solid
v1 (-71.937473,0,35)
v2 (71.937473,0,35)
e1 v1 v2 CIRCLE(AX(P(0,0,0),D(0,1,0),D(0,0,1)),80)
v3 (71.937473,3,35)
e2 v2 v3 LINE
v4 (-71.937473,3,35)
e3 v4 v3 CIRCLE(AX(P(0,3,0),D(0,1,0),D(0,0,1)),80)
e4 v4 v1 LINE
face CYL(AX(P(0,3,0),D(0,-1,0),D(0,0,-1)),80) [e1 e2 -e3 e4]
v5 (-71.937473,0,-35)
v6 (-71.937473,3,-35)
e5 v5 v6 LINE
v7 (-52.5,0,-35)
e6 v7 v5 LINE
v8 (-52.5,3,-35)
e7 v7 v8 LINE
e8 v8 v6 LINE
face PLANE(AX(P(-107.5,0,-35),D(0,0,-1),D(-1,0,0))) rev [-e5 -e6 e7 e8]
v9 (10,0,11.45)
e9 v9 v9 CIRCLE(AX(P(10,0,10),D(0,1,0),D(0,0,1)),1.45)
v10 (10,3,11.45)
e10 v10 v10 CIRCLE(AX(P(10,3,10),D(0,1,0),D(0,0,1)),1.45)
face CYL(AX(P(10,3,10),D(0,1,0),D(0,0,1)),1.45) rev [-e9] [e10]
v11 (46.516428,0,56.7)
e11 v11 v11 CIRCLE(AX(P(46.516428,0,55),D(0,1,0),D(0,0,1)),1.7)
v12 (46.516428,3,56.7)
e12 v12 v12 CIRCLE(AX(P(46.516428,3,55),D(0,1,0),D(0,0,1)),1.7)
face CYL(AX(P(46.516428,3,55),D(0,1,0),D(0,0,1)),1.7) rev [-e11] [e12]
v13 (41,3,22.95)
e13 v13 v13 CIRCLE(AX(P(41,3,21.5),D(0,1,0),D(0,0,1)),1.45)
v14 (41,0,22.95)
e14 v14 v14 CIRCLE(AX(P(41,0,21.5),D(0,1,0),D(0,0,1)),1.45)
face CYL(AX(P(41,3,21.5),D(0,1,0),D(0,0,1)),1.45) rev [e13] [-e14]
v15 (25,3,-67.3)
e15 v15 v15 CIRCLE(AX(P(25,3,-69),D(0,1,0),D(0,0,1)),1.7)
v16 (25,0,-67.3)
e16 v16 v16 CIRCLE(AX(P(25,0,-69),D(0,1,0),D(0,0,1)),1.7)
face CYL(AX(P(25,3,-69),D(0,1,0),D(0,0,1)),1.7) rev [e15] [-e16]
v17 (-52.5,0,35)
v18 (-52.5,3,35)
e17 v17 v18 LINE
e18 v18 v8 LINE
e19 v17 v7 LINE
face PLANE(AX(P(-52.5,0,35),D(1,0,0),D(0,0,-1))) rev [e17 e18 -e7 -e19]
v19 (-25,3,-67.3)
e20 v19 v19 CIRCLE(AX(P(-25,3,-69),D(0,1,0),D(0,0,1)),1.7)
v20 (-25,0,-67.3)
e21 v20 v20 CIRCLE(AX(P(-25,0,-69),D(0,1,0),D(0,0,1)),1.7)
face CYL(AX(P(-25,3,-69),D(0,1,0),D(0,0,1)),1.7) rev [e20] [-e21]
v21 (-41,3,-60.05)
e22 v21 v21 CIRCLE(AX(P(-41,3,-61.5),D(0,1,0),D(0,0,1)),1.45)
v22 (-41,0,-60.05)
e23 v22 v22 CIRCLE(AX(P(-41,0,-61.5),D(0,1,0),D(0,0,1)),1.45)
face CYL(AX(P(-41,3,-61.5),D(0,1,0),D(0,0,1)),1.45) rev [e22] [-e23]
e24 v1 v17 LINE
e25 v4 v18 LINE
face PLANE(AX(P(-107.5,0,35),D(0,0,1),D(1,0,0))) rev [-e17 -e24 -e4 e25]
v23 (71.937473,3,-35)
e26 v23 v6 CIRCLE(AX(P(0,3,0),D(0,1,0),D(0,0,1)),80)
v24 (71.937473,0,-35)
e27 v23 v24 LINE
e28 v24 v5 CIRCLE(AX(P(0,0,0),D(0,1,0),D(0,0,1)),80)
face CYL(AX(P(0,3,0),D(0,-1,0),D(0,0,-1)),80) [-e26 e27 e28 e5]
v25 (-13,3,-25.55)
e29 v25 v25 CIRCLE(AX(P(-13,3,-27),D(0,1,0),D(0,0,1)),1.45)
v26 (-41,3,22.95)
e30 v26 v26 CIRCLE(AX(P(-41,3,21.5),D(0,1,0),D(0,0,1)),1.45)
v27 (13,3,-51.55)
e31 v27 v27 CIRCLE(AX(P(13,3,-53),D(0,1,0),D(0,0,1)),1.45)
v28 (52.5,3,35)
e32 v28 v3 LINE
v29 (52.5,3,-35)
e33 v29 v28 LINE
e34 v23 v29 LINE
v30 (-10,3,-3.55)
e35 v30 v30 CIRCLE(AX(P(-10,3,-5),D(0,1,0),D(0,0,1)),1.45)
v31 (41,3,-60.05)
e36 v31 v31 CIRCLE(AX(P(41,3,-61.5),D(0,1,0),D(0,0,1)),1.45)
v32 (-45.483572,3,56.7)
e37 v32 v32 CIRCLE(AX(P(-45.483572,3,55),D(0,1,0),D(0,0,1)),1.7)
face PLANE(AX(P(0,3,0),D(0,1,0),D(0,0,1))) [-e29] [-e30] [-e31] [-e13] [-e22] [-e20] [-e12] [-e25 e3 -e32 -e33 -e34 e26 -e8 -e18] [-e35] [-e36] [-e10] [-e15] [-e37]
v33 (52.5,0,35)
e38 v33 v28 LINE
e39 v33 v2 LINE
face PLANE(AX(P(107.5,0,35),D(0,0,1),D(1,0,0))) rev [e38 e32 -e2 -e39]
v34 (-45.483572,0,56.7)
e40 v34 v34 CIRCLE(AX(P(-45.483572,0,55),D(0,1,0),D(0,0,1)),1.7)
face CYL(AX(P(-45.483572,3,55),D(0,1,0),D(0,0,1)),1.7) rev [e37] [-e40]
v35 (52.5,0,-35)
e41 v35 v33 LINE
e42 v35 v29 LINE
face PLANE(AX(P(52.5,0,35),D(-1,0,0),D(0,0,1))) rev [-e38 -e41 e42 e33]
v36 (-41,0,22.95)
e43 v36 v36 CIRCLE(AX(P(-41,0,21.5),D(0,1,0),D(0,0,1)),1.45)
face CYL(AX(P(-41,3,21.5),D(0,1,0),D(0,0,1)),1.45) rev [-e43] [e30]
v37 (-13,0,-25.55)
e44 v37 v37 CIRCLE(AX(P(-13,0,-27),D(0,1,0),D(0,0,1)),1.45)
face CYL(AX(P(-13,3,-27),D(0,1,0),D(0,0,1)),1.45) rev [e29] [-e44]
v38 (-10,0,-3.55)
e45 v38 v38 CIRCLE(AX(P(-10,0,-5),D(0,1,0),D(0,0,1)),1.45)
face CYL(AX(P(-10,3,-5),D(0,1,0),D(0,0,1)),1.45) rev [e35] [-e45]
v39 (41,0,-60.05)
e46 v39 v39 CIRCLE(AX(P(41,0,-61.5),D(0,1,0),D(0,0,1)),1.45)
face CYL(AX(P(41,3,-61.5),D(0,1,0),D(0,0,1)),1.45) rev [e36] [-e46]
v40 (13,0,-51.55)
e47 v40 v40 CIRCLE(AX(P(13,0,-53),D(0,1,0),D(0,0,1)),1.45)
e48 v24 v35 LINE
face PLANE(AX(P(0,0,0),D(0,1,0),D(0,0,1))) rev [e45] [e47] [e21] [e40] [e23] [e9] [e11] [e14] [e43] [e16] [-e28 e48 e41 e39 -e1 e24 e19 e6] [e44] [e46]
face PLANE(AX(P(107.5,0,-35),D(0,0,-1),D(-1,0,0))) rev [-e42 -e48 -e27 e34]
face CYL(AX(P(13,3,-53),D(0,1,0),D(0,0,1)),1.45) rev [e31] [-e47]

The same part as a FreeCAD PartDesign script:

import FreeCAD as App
import Part
import Sketcher
from FreeCAD import Vector

doc = App.newDocument("Part")
body = doc.addObject("PartDesign::Body", "Body")

sketch1 = body.newObject("Sketcher::SketchObject", "Sketch")
sketch1.AttachmentSupport = (doc.getObject("XZ_Plane"), [""])
sketch1.MapMode = "FlatFace"
sketch1.addGeometry(Part.Circle(Vector(0, 0, 0), Vector(0, 0, 1), 80), False)
sketch1.addConstraint(Sketcher.Constraint("Coincident", 0, 3, -1, 1))
sketch1.addConstraint(Sketcher.Constraint("Diameter", 0, 160.0))
pad1 = body.newObject("PartDesign::Pad", "Pad")
pad1.Profile = sketch1
pad1.Length = 3
pad1.Reversed = True

sketch2 = body.newObject("Sketcher::SketchObject", "Sketch001")
sketch2.AttachmentSupport = (doc.getObject("XZ_Plane"), [""])
sketch2.MapMode = "FlatFace"
sketch2.AttachmentOffset = App.Placement(Vector(0, 0, -3), App.Rotation())
sketch2.addGeometry(Part.LineSegment(Vector(-108, -35, 0), Vector(-108, 35, 0)), False)
sketch2.addGeometry(Part.LineSegment(Vector(-108, 35, 0), Vector(-52, 35, 0)), False)
sketch2.addGeometry(Part.LineSegment(Vector(-52, 35, 0), Vector(-52, -35, 0)), False)
sketch2.addGeometry(Part.LineSegment(Vector(-52, -35, 0), Vector(-108, -35, 0)), False)
sketch2.addGeometry(Part.LineSegment(Vector(52, -35, 0), Vector(52, 35, 0)), False)
sketch2.addGeometry(Part.LineSegment(Vector(52, 35, 0), Vector(108, 35, 0)), False)
sketch2.addGeometry(Part.LineSegment(Vector(108, 35, 0), Vector(108, -35, 0)), False)
sketch2.addGeometry(Part.LineSegment(Vector(108, -35, 0), Vector(52, -35, 0)), False)
sketch2.addConstraint(Sketcher.Constraint("Coincident", 0, 2, 1, 1))
sketch2.addConstraint(Sketcher.Constraint("Coincident", 1, 2, 2, 1))
sketch2.addConstraint(Sketcher.Constraint("Coincident", 2, 2, 3, 1))
sketch2.addConstraint(Sketcher.Constraint("Coincident", 3, 2, 0, 1))
sketch2.addConstraint(Sketcher.Constraint("Coincident", 4, 2, 5, 1))
sketch2.addConstraint(Sketcher.Constraint("Coincident", 5, 2, 6, 1))
sketch2.addConstraint(Sketcher.Constraint("Coincident", 6, 2, 7, 1))
sketch2.addConstraint(Sketcher.Constraint("Coincident", 7, 2, 4, 1))
sketch2.addConstraint(Sketcher.Constraint("Vertical", 0))
sketch2.addConstraint(Sketcher.Constraint("Horizontal", 1))
sketch2.addConstraint(Sketcher.Constraint("Vertical", 2))
sketch2.addConstraint(Sketcher.Constraint("Horizontal", 3))
sketch2.addConstraint(Sketcher.Constraint("Vertical", 4))
sketch2.addConstraint(Sketcher.Constraint("Horizontal", 5))
sketch2.addConstraint(Sketcher.Constraint("Vertical", 6))
sketch2.addConstraint(Sketcher.Constraint("Horizontal", 7))
sketch2.addConstraint(Sketcher.Constraint("Symmetric", 2, 2, 4, 2, -1, 1))
sketch2.addConstraint(Sketcher.Constraint("Symmetric", 0, 2, 6, 2, -1, 1))
sketch2.addConstraint(Sketcher.Constraint("Horizontal", 1, 2, 4, 2))
sketch2.addConstraint(Sketcher.Constraint("DistanceX", 1, 1, 1, 2, 55.0))
sketch2.addConstraint(Sketcher.Constraint("DistanceY", 0, 1, 0, 2, 70.0))
sketch2.addConstraint(Sketcher.Constraint("DistanceX", 1, 2, 4, 2, 105.0))
pocket1 = body.newObject("PartDesign::Pocket", "Pocket")
pocket1.Profile = sketch2
pocket1.Type = "ThroughAll"
pocket1.Reversed = True

sketch3 = body.newObject("Sketcher::SketchObject", "Sketch002")
sketch3.AttachmentSupport = (doc.getObject("XZ_Plane"), [""])
sketch3.MapMode = "FlatFace"
sketch3.AttachmentOffset = App.Placement(Vector(0, 0, -3), App.Rotation())
sketch3.addGeometry(Part.Circle(Vector(-41, -61.5, 0), Vector(0, 0, 1), 1.4), False)
sketch3.addGeometry(Part.Circle(Vector(-41, 21.5, 0), Vector(0, 0, 1), 1.4), False)
sketch3.addGeometry(Part.Circle(Vector(41, 21.5, 0), Vector(0, 0, 1), 1.4), False)
sketch3.addGeometry(Part.Circle(Vector(41, -61.5, 0), Vector(0, 0, 1), 1.4), False)
sketch3.addConstraint(Sketcher.Constraint("Equal", 0, 1))
sketch3.addConstraint(Sketcher.Constraint("Equal", 1, 2))
sketch3.addConstraint(Sketcher.Constraint("Equal", 2, 3))
sketch3.addConstraint(Sketcher.Constraint("Symmetric", 1, 3, 2, 3, -2))
sketch3.addConstraint(Sketcher.Constraint("Symmetric", 0, 3, 3, 3, -2))
sketch3.addConstraint(Sketcher.Constraint("Vertical", 0, 3, 1, 3))
sketch3.addConstraint(Sketcher.Constraint("Diameter", 0, 2.9))
sketch3.addConstraint(Sketcher.Constraint("DistanceX", 0, 3, -1, 1, 41.0))
sketch3.addConstraint(Sketcher.Constraint("DistanceY", 0, 3, 1, 3, 83.0))
sketch3.addConstraint(Sketcher.Constraint("DistanceY", 0, 3, -1, 1, 61.5))
doc.recompute()
hole = body.newObject("PartDesign::Hole", "Hole")
hole.Profile = sketch3
hole.ThreadType = "None"
hole.Diameter = 2.9
hole.DepthType = "Dimension"
hole.Depth = 24
hole.DrillPoint = "Angled"
hole.DrillPointAngle = 118
hole.Reversed = True

sketch4 = body.newObject("Sketcher::SketchObject", "Sketch003")
sketch4.AttachmentSupport = (doc.getObject("XZ_Plane"), [""])
sketch4.MapMode = "FlatFace"
sketch4.AttachmentOffset = App.Placement(Vector(0, 0, -3), App.Rotation())
sketch4.addGeometry(Part.Circle(Vector(-13, -27, 0), Vector(0, 0, 1), 1.4), False)
sketch4.addGeometry(Part.Circle(Vector(13, -53, 0), Vector(0, 0, 1), 1.4), False)
sketch4.addGeometry(Part.Circle(Vector(-10, -5, 0), Vector(0, 0, 1), 1.4), False)
sketch4.addGeometry(Part.Circle(Vector(10, 10, 0), Vector(0, 0, 1), 1.4), False)
sketch4.addConstraint(Sketcher.Constraint("Equal", 0, 1))
sketch4.addConstraint(Sketcher.Constraint("Equal", 1, 2))
sketch4.addConstraint(Sketcher.Constraint("Equal", 2, 3))
sketch4.addConstraint(Sketcher.Constraint("Diameter", 0, 2.9))
sketch4.addConstraint(Sketcher.Constraint("DistanceX", 0, 3, -1, 1, 13.0))
sketch4.addConstraint(Sketcher.Constraint("DistanceY", 0, 3, -1, 1, 27.0))
sketch4.addConstraint(Sketcher.Constraint("DistanceX", -1, 1, 1, 3, 13.0))
sketch4.addConstraint(Sketcher.Constraint("DistanceY", 1, 3, -1, 1, 53.0))
sketch4.addConstraint(Sketcher.Constraint("DistanceX", 2, 3, -1, 1, 10.0))
sketch4.addConstraint(Sketcher.Constraint("DistanceY", 2, 3, -1, 1, 5.0))
sketch4.addConstraint(Sketcher.Constraint("DistanceX", -1, 1, 3, 3, 10.0))
sketch4.addConstraint(Sketcher.Constraint("DistanceY", -1, 1, 3, 3, 10.0))
doc.recompute()
hole2 = body.newObject("PartDesign::Hole", "Hole001")
hole2.Profile = sketch4
hole2.ThreadType = "None"
hole2.Diameter = 2.9
hole2.DepthType = "Dimension"
hole2.Depth = 24
hole2.DrillPoint = "Angled"
hole2.DrillPointAngle = 118
hole2.Reversed = True

sketch5 = body.newObject("Sketcher::SketchObject", "Sketch004")
sketch5.AttachmentSupport = (doc.getObject("XZ_Plane"), [""])
sketch5.MapMode = "FlatFace"
sketch5.AttachmentOffset = App.Placement(Vector(0, 0, -3), App.Rotation())
sketch5.addGeometry(Part.Circle(Vector(-45.5, 55, 0), Vector(0, 0, 1), 1.7), False)
sketch5.addGeometry(Part.Circle(Vector(46.5, 55, 0), Vector(0, 0, 1), 1.7), False)
sketch5.addGeometry(Part.Circle(Vector(-25, -69, 0), Vector(0, 0, 1), 1.7), False)
sketch5.addGeometry(Part.Circle(Vector(25, -69, 0), Vector(0, 0, 1), 1.7), False)
sketch5.addConstraint(Sketcher.Constraint("Equal", 0, 1))
sketch5.addConstraint(Sketcher.Constraint("Equal", 1, 2))
sketch5.addConstraint(Sketcher.Constraint("Equal", 2, 3))
sketch5.addConstraint(Sketcher.Constraint("Symmetric", 2, 3, 3, 3, -2))
sketch5.addConstraint(Sketcher.Constraint("Horizontal", 0, 3, 1, 3))
sketch5.addConstraint(Sketcher.Constraint("Diameter", 0, 3.4))
sketch5.addConstraint(Sketcher.Constraint("DistanceY", -1, 1, 0, 3, 55.0))
sketch5.addConstraint(Sketcher.Constraint("DistanceX", 2, 3, -1, 1, 25.0))
sketch5.addConstraint(Sketcher.Constraint("DistanceY", 2, 3, -1, 1, 69.0))
sketch5.addConstraint(Sketcher.Constraint("DistanceX", 0, 3, 1, 3, 92.0))
sketch5.addConstraint(Sketcher.Constraint("DistanceX", 0, 3, -1, 1, 45.483572))
doc.recompute()
hole3 = body.newObject("PartDesign::Hole", "Hole002")
hole3.Profile = sketch5
hole3.ThreadType = "None"
hole3.Diameter = 3.4
hole3.DepthType = "Dimension"
hole3.Depth = 24
hole3.DrillPoint = "Angled"
hole3.DrillPointAngle = 118
hole3.Reversed = True

doc.recompute()
